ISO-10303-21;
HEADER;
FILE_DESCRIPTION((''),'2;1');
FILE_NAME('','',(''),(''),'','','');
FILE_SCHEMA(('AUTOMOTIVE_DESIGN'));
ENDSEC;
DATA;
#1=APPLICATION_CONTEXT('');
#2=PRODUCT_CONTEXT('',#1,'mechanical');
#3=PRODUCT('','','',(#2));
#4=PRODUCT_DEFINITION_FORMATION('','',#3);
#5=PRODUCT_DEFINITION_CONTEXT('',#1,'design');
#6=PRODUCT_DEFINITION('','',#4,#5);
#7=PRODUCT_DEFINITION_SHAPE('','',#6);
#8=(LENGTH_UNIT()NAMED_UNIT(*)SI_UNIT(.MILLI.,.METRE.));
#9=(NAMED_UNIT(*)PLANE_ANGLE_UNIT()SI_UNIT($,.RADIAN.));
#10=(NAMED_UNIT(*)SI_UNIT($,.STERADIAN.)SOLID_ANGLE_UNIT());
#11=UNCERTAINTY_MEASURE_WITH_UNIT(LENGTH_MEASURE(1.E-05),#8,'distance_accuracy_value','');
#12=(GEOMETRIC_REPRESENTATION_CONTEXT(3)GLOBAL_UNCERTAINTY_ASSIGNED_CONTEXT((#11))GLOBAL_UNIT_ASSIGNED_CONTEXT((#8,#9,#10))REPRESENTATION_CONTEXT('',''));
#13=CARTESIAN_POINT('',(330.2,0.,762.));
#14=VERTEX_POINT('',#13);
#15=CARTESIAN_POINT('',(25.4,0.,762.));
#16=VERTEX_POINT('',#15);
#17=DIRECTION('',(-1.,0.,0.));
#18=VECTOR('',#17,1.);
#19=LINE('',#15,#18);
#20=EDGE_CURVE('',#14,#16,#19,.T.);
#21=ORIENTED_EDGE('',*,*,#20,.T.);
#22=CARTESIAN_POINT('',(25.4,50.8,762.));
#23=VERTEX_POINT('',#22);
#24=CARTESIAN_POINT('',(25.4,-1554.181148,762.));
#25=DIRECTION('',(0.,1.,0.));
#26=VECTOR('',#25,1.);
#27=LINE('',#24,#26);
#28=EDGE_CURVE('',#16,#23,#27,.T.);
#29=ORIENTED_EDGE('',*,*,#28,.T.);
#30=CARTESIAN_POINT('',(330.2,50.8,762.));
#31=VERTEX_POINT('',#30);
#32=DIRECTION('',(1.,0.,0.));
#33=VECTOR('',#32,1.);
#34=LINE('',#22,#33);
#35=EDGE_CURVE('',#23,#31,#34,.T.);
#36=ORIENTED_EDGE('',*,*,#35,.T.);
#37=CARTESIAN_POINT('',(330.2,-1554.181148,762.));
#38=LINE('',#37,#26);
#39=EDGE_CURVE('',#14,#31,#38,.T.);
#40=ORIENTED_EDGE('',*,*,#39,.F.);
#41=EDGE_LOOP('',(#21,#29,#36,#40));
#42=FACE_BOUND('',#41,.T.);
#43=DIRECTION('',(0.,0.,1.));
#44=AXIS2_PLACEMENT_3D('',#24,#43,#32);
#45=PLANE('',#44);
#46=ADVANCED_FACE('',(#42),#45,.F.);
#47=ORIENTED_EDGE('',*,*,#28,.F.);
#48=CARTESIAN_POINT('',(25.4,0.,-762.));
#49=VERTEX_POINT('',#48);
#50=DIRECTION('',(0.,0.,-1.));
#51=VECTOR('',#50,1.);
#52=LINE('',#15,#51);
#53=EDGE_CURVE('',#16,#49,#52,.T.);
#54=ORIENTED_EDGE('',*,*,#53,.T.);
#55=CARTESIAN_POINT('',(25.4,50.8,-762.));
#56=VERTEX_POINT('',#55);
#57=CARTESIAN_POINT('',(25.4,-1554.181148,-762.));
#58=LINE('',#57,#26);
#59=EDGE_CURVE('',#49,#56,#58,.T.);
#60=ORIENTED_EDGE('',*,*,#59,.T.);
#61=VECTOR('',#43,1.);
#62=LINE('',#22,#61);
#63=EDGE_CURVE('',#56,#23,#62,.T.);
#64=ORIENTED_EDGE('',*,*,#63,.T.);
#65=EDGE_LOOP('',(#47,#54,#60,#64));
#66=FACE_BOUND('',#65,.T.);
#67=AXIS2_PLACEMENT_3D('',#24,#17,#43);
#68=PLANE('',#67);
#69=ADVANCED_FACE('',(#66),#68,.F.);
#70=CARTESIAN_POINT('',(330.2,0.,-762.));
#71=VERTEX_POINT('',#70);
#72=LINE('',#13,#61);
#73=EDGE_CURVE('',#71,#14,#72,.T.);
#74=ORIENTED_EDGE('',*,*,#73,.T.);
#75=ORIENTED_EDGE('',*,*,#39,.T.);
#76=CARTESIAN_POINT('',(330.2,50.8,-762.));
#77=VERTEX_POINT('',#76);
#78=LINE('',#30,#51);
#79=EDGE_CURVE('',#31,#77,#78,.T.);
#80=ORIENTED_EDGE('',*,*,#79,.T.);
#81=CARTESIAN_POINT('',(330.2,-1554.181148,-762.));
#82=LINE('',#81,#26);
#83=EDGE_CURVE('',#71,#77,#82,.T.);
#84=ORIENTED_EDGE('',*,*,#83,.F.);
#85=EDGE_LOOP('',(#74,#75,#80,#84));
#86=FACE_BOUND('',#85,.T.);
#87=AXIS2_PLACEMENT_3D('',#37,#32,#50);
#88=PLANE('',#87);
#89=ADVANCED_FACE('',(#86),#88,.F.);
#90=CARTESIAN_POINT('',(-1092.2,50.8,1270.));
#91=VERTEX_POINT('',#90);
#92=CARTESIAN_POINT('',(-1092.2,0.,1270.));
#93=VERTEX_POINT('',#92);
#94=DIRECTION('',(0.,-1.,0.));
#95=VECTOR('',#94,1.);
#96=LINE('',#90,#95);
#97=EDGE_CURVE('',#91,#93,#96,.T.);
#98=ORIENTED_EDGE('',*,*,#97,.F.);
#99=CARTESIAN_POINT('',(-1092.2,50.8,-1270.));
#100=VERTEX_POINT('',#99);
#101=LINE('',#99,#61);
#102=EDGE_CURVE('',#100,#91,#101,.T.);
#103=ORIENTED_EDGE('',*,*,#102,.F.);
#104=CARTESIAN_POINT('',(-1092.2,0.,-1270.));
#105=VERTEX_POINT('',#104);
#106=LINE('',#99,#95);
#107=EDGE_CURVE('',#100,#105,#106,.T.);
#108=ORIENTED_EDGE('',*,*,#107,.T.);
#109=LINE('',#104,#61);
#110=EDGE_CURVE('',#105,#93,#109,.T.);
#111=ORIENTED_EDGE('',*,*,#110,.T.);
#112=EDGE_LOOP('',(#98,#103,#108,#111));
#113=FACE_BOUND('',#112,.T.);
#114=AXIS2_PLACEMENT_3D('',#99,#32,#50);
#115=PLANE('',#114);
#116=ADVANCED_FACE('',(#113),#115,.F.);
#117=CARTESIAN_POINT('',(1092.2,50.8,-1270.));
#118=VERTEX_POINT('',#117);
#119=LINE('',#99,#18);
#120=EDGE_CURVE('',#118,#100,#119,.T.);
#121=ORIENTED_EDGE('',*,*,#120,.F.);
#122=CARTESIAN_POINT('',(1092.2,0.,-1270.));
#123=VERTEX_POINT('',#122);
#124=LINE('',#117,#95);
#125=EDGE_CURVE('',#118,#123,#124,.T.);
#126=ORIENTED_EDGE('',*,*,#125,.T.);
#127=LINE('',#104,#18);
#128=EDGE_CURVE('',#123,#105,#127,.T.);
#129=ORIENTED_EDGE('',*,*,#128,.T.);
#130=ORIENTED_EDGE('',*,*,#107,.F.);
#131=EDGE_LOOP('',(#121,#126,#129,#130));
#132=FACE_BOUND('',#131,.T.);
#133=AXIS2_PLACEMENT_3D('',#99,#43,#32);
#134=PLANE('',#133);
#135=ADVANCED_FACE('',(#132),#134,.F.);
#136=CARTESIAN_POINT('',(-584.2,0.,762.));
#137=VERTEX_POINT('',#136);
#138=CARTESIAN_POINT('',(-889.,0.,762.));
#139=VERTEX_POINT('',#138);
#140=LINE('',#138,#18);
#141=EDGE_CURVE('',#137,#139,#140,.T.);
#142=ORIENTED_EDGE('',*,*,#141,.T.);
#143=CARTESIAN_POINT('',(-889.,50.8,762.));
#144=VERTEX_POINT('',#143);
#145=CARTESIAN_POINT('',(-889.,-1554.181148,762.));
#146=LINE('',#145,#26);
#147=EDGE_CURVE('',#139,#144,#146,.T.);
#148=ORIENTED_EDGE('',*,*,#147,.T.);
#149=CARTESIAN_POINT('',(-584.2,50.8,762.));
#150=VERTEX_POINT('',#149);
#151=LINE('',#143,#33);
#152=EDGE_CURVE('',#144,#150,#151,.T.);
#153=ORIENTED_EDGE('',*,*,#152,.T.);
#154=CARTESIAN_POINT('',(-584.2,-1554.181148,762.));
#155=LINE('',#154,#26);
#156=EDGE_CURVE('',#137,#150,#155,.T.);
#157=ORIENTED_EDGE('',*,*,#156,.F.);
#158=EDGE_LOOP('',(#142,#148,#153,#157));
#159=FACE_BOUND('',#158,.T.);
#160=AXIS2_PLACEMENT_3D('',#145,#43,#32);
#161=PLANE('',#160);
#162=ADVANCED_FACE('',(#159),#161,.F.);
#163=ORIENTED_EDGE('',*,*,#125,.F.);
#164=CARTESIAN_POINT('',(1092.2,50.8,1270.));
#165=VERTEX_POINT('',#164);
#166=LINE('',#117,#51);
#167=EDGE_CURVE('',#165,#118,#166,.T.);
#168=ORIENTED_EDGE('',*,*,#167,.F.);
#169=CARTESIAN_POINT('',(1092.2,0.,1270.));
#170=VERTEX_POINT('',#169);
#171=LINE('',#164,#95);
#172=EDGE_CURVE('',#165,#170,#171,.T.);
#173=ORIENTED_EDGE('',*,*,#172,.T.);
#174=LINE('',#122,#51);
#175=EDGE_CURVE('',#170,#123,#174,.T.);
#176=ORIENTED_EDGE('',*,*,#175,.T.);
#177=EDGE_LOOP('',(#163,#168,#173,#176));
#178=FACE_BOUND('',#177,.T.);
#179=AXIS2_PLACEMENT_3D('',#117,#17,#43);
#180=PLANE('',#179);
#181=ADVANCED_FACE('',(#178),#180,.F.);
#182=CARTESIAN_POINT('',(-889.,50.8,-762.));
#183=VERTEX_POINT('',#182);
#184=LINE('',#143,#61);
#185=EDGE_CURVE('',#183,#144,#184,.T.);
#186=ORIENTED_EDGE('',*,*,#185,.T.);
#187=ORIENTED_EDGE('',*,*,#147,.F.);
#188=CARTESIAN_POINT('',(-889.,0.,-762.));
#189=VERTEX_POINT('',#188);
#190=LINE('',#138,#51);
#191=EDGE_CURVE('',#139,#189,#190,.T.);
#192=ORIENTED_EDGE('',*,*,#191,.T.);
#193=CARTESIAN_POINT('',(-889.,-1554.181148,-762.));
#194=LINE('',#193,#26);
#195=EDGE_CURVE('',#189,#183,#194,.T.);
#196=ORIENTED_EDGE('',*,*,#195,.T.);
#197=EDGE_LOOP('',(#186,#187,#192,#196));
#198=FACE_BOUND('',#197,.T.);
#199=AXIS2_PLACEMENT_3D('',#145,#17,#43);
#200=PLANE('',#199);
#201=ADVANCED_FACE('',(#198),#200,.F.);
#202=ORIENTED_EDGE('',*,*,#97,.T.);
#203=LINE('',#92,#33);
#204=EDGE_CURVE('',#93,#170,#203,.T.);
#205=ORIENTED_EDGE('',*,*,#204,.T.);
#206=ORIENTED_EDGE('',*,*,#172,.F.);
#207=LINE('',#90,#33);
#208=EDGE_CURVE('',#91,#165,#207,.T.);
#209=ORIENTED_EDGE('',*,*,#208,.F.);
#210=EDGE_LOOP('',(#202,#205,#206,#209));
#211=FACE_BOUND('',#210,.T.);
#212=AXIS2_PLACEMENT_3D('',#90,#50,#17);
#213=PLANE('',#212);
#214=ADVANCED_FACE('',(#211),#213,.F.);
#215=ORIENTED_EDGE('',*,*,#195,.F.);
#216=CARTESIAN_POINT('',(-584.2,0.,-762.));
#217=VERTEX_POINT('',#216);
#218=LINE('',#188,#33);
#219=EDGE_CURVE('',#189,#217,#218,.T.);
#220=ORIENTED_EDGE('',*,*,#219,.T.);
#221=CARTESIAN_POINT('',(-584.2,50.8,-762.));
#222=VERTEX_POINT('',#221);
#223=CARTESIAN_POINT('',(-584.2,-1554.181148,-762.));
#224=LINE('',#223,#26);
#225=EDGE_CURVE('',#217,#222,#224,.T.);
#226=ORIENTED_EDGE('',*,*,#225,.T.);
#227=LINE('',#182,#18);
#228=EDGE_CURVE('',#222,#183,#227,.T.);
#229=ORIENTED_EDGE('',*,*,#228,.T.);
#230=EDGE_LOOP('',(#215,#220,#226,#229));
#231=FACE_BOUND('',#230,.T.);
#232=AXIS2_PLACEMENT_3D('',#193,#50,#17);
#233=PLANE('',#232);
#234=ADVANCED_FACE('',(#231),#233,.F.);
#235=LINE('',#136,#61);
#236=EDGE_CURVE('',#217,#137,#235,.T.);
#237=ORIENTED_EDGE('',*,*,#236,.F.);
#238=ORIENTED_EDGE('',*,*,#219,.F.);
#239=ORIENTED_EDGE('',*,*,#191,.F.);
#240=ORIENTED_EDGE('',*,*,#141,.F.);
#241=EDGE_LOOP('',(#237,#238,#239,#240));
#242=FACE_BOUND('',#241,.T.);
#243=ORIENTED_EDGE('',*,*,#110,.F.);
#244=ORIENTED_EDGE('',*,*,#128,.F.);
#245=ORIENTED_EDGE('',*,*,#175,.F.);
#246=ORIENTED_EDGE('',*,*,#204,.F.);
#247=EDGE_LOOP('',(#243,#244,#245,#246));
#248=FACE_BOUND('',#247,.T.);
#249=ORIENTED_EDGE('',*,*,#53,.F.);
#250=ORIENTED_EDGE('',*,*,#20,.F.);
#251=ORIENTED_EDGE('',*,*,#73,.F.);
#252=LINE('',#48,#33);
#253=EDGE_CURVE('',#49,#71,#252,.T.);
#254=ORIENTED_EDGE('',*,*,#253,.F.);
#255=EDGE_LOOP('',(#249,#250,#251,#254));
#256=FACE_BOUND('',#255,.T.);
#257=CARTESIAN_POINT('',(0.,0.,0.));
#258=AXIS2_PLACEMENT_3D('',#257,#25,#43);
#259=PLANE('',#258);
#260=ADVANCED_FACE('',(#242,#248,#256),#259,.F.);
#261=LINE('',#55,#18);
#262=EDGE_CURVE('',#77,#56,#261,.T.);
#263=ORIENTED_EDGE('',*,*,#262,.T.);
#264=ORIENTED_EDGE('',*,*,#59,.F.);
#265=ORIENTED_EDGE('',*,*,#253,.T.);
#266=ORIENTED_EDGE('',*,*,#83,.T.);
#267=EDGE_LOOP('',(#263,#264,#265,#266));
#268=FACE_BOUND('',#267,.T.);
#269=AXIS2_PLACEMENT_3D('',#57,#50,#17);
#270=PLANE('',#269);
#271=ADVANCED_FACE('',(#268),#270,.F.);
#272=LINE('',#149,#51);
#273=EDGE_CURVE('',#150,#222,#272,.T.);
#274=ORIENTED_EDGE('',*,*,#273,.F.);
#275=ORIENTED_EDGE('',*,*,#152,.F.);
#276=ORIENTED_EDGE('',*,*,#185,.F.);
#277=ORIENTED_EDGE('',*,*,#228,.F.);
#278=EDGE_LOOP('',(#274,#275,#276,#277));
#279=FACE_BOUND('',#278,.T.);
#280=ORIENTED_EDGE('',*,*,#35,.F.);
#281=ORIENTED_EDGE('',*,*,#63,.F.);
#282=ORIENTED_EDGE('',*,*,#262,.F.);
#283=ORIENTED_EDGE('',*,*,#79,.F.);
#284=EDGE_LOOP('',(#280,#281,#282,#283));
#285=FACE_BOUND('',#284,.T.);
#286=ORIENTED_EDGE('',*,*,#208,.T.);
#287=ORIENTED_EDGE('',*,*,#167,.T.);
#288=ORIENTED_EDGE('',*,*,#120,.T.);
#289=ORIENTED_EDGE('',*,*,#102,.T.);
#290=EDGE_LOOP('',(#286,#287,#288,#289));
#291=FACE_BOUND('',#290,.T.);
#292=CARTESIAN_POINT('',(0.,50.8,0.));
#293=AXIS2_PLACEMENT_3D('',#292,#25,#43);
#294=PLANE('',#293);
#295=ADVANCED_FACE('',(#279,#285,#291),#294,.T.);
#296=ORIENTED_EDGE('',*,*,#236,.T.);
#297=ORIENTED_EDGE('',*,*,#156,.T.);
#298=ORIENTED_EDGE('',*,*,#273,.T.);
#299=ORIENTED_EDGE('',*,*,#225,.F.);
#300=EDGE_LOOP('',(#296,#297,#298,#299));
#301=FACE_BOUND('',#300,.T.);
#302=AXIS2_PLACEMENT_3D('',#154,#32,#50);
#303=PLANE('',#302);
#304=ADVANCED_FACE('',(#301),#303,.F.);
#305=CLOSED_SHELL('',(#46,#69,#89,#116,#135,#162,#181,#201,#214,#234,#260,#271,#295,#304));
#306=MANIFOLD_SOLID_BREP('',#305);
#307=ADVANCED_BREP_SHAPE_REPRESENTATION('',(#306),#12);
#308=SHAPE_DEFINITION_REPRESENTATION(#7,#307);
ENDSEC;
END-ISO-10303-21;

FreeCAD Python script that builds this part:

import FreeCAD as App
import Part
import Sketcher

V = App.Vector
Q = App.Units.Quantity


def add_polygon(sketch, points):
    """Adds a closed chain of lines whose ends are joined by coincident constraints."""
    first, n = sketch.GeometryCount, len(points)
    for a, b in zip(points, points[1:] + points[:1]):
        sketch.addGeometry(Part.LineSegment(App.Vector(*a, 0), App.Vector(*b, 0)), False)
    for i in range(n):
        sketch.addConstraint(Sketcher.Constraint("Coincident", first + i, 2, first + (i + 1) % n, 1))

doc = App.newDocument("Part")
body = doc.addObject("PartDesign::Body", "Body")

# Sketch on XZ plane
sketch1 = doc.addObject("Sketcher::SketchObject", "Sketch")
body.addObject(sketch1)
sketch1.AttachmentSupport = (doc.XZ_Plane, [""])
sketch1.MapMode = "FlatFace"
add_polygon(sketch1, [(-1092, -1270), (-1092, 1270), (1092, 1270), (1092, -1270)])  # lines 0-3
sketch1.addConstraint(Sketcher.Constraint("Vertical", 0))
sketch1.addConstraint(Sketcher.Constraint("Horizontal", 1))
sketch1.addConstraint(Sketcher.Constraint("Vertical", 2))
sketch1.addConstraint(Sketcher.Constraint("Horizontal", 3))
sketch1.addConstraint(Sketcher.Constraint("Symmetric", 0, 2, 2, 2, -1, 1))
sketch1.addConstraint(Sketcher.Constraint("DistanceX", 1, 1, 1, 2, Q("86 in")))
sketch1.addConstraint(Sketcher.Constraint("DistanceY", 0, 1, 0, 2, Q("100 in")))
pad1 = doc.addObject("PartDesign::Pad", "Pad")
body.addObject(pad1)
pad1.Profile = sketch1
pad1.Length = Q("2 in")
pad1.Reversed = True

# Sketch on XZ plane
sketch2 = doc.addObject("Sketcher::SketchObject", "Sketch001")
body.addObject(sketch2)
sketch2.AttachmentSupport = (doc.XZ_Plane, [""])
sketch2.MapMode = "FlatFace"
sketch2.AttachmentOffset = App.Placement(V(0, 0, -2 * 25.4), App.Rotation())
add_polygon(sketch2, [(25, -762), (25, 762), (330, 762), (330, -762)])  # lines 0-3
add_polygon(sketch2, [(-889, -762), (-889, 762), (-584, 762), (-584, -762)])  # lines 4-7
sketch2.addConstraint(Sketcher.Constraint("Vertical", 0))
sketch2.addConstraint(Sketcher.Constraint("Horizontal", 1))
sketch2.addConstraint(Sketcher.Constraint("Vertical", 2))
sketch2.addConstraint(Sketcher.Constraint("Horizontal", 3))
sketch2.addConstraint(Sketcher.Constraint("Vertical", 4))
sketch2.addConstraint(Sketcher.Constraint("Horizontal", 5))
sketch2.addConstraint(Sketcher.Constraint("Vertical", 6))
sketch2.addConstraint(Sketcher.Constraint("Horizontal", 7))
sketch2.addConstraint(Sketcher.Constraint("Horizontal", 1, 2, 4, 2))
sketch2.addConstraint(Sketcher.Constraint("Horizontal", 3, 2, 6, 2))
sketch2.addConstraint(Sketcher.Constraint("Equal", 3, 5))
sketch2.addConstraint(Sketcher.Constraint("DistanceX", 1, 1, 1, 2, Q("12 in")))
sketch2.addConstraint(Sketcher.Constraint("DistanceY", 0, 1, 0, 2, Q("60 in")))
sketch2.addConstraint(Sketcher.Constraint("DistanceX", -1, 1, 0, 2, Q("1 in")))
sketch2.addConstraint(Sketcher.Constraint("DistanceY", -1, 1, 0, 2, Q("30 in")))
sketch2.addConstraint(Sketcher.Constraint("DistanceX", 4, 2, -1, 1, Q("35 in")))
pocket1 = doc.addObject("PartDesign::Pocket", "Pocket")
body.addObject(pocket1)
pocket1.Profile = sketch2
pocket1.Length = Q("2 in")
pocket1.Reversed = True

doc.recompute()
